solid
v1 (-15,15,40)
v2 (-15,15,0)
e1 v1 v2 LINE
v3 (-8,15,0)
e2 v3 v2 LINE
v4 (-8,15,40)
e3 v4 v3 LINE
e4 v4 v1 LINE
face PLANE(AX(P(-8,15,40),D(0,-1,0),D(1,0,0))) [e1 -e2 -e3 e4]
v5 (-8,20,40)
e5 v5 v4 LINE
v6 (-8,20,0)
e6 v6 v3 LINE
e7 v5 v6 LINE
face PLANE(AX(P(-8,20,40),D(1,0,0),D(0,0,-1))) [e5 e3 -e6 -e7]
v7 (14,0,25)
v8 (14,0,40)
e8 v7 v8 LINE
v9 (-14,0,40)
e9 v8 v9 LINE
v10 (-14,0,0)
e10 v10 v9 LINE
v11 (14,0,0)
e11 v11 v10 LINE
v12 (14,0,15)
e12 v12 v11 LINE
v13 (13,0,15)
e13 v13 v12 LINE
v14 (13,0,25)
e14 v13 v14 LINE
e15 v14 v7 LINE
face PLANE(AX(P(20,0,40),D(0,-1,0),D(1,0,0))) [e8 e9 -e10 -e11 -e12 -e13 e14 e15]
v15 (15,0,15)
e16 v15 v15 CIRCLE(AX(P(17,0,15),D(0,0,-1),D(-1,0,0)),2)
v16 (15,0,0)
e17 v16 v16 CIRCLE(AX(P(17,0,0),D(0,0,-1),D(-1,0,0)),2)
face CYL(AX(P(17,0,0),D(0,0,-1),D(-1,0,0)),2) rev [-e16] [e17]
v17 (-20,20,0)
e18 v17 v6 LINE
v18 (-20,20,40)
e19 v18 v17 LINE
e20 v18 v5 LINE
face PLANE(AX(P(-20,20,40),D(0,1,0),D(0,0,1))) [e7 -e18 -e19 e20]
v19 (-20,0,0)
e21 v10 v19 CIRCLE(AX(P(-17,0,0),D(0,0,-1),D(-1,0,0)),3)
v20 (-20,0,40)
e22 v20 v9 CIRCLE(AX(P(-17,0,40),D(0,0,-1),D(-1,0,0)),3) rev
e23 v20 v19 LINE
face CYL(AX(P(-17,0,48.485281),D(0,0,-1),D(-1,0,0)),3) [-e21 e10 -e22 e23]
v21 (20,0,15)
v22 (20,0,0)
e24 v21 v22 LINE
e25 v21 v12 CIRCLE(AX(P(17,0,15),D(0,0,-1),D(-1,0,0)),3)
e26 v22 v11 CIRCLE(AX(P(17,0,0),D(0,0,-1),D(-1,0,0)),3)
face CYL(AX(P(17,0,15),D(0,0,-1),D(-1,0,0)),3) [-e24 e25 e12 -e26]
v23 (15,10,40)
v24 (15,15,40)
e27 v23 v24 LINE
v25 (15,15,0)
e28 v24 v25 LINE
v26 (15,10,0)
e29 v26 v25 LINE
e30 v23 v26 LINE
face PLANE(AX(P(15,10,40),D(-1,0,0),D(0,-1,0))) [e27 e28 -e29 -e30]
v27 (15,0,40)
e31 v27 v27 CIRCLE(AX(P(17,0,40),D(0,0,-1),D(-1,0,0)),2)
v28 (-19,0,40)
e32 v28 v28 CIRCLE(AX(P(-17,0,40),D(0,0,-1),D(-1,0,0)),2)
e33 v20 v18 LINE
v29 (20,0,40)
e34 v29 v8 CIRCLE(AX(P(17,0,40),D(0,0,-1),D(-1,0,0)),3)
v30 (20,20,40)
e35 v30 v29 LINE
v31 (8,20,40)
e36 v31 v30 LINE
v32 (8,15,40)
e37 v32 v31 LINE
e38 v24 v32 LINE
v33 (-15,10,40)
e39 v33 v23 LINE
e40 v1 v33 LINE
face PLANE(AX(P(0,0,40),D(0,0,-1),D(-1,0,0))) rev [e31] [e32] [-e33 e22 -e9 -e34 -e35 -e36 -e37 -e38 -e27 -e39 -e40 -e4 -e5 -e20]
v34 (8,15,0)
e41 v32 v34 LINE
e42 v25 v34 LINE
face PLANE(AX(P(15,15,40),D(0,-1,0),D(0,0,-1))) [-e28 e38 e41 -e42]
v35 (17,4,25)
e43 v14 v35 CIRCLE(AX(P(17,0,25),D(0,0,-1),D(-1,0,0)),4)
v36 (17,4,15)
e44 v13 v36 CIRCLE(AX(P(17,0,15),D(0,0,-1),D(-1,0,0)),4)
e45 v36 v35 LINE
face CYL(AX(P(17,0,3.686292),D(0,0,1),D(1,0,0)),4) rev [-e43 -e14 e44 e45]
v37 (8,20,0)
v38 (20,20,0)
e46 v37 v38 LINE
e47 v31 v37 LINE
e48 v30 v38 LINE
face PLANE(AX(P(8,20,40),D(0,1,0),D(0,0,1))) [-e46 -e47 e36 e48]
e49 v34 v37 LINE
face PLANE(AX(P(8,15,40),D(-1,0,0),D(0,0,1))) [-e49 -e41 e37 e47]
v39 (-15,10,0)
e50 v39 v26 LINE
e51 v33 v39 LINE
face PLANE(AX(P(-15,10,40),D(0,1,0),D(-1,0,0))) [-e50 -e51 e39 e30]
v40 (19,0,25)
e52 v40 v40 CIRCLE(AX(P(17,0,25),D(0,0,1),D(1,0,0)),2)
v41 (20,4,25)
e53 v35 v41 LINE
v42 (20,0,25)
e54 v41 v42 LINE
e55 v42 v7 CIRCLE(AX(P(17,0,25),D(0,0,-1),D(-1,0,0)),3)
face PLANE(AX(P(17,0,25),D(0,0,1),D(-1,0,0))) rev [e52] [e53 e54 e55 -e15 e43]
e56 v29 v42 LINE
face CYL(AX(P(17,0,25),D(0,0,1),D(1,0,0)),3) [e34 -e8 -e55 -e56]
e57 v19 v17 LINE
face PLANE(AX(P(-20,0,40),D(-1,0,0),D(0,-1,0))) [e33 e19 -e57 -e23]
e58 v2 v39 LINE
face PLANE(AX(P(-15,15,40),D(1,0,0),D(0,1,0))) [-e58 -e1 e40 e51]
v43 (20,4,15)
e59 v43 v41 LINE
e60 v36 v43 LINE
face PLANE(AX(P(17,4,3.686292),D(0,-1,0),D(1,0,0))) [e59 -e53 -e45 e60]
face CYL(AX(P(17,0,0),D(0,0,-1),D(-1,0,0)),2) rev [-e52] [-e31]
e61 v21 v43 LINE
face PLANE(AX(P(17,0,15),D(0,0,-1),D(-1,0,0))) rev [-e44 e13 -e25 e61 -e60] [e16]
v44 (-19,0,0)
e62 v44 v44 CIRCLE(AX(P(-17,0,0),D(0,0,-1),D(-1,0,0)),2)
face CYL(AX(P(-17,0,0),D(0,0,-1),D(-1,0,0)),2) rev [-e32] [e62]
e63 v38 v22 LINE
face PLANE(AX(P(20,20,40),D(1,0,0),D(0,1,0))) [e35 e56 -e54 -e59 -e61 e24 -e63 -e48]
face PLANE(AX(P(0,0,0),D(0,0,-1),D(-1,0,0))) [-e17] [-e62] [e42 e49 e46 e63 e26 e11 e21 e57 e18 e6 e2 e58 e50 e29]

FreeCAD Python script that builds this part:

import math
import FreeCAD as App
import Part
import Sketcher

V = App.Vector

doc = App.newDocument("Part")
body = doc.addObject("PartDesign::Body", "Body")

# Sketch on XY plane
sketch1 = body.newObject("Sketcher::SketchObject", "Sketch")
sketch1.AttachmentSupport = (doc.getObject("XY_Plane"), [""])
sketch1.MapMode = "FlatFace"
sketch1.addGeometry([
    Part.LineSegment(V(-8, 20, 0), V(-20, 20, 0)),  # 0
    Part.LineSegment(V(-20, 20, 0), V(-20, 0, 0)),  # 1
    Part.LineSegment(V(-20, 0, 0), V(20, 0, 0)),  # 2
    Part.LineSegment(V(20, 0, 0), V(20, 20, 0)),  # 3
    Part.LineSegment(V(20, 20, 0), V(8, 20, 0)),  # 4
    Part.LineSegment(V(8, 20, 0), V(8, 15, 0)),  # 5
    Part.LineSegment(V(8, 15, 0), V(15, 15, 0)),  # 6
    Part.LineSegment(V(15, 15, 0), V(15, 10, 0)),  # 7
    Part.LineSegment(V(15, 10, 0), V(-15, 10, 0)),  # 8
    Part.LineSegment(V(-15, 10, 0), V(-15, 15, 0)),  # 9
    Part.LineSegment(V(-15, 15, 0), V(-8, 15, 0)),  # 10
    Part.LineSegment(V(-8, 15, 0), V(-8, 20, 0)),  # 11
], False)
sketch1.addConstraint([
    Sketcher.Constraint("Coincident", 0, 2, 1, 1),
    Sketcher.Constraint("Coincident", 1, 2, 2, 1),
    Sketcher.Constraint("Coincident", 2, 2, 3, 1),
    Sketcher.Constraint("Coincident", 3, 2, 4, 1),
    Sketcher.Constraint("Coincident", 4, 2, 5, 1),
    Sketcher.Constraint("Coincident", 5, 2, 6, 1),
    Sketcher.Constraint("Coincident", 6, 2, 7, 1),
    Sketcher.Constraint("Coincident", 7, 2, 8, 1),
    Sketcher.Constraint("Coincident", 8, 2, 9, 1),
    Sketcher.Constraint("Coincident", 9, 2, 10, 1),
    Sketcher.Constraint("Coincident", 10, 2, 11, 1),
    Sketcher.Constraint("Coincident", 11, 2, 0, 1),
    Sketcher.Constraint("Horizontal", 0),
    Sketcher.Constraint("Vertical", 1),
    Sketcher.Constraint("Horizontal", 2),
    Sketcher.Constraint("Vertical", 3),
    Sketcher.Constraint("Horizontal", 4),
    Sketcher.Constraint("Vertical", 5),
    Sketcher.Constraint("Horizontal", 6),
    Sketcher.Constraint("Vertical", 7),
    Sketcher.Constraint("Horizontal", 8),
    Sketcher.Constraint("Vertical", 9),
    Sketcher.Constraint("Horizontal", 10),
    Sketcher.Constraint("Vertical", 11),
    Sketcher.Constraint("Symmetric", 1, 2, 2, 2, -1, 1),
    Sketcher.Constraint("Symmetric", 6, 2, 9, 2, -2),
    Sketcher.Constraint("Symmetric", 4, 2, 11, 2, -2),
    Sketcher.Constraint("Equal", 5, 7),
    Sketcher.Constraint("DistanceX", 0, 2, 0, 1, 12.0),
    Sketcher.Constraint("DistanceX", 2, 1, 2, 2, 40.0),
    Sketcher.Constraint("DistanceX", 6, 1, 6, 2, 7.0),
    Sketcher.Constraint("DistanceY", 1, 2, 1, 1, 20.0),
    Sketcher.Constraint("DistanceY", 5, 2, 5, 1, 5.0),
])
pad1 = body.newObject("PartDesign::Pad", "Pad")
pad1.Profile = sketch1
pad1.Length = 40

# Sketch on XY plane
sketch2 = body.newObject("Sketcher::SketchObject", "Sketch001")
sketch2.AttachmentSupport = (doc.getObject("XY_Plane"), [""])
sketch2.MapMode = "FlatFace"
sketch2.addGeometry([
    Part.LineSegment(V(14, 0, 0), V(20, 0, 0)),
    Part.ArcOfCircle(Part.Circle(V(17, 0, 0), V(0, 0, 1), 3), math.radians(180), math.radians(360)),
], False)
sketch2.addConstraint([
    Sketcher.Constraint("Coincident", 0, 1, 1, 1),
    Sketcher.Constraint("Coincident", 1, 2, 0, 2),
    Sketcher.Constraint("Horizontal", 0),
    Sketcher.Constraint("PointOnObject", 1, 3, -1),
    Sketcher.Constraint("PointOnObject", 0, 1, -1),
    Sketcher.Constraint("Radius", 1, 3.0),
    Sketcher.Constraint("DistanceX", -1, 1, 1, 3, 17.0),
])
pad2 = body.newObject("PartDesign::Pad", "Pad001")
pad2.Profile = sketch2
pad2.Length = 15
doc.recompute()

datumplane = body.newObject("PartDesign::Plane", "DatumPlane")
datumplane.AttachmentSupport = (doc.getObject("XY_Plane"), [""])
datumplane.MapMode = "FlatFace"
datumplane.AttachmentOffset = App.Placement(V(0, 0, 20), App.Rotation())
mirrored = body.newObject("PartDesign::Mirrored", "Mirrored")
mirrored.Originals = [pad2]
mirrored.MirrorPlane = (datumplane, [""])
body.Tip = mirrored

# Sketch on XY plane
sketch3 = body.newObject("Sketcher::SketchObject", "Sketch002")
sketch3.AttachmentSupport = (doc.getObject("XY_Plane"), [""])
sketch3.MapMode = "FlatFace"
sketch3.addGeometry(Part.Circle(V(-17, 0, 0), V(0, 0, 1), 3), False)
sketch3.addConstraint([
    Sketcher.Constraint("PointOnObject", 0, 3, -1),
    Sketcher.Constraint("Diameter", 0, 6.0),
    Sketcher.Constraint("DistanceX", 0, 3, -1, 1, 17.0),
])
pad3 = body.newObject("PartDesign::Pad", "Pad002")
pad3.Profile = sketch3
pad3.Length = 40

# Sketch on XY plane
sketch4 = body.newObject("Sketcher::SketchObject", "Sketch003")
sketch4.AttachmentSupport = (doc.getObject("XY_Plane"), [""])
sketch4.MapMode = "FlatFace"
sketch4.AttachmentOffset = App.Placement(V(0, 0, 25), App.Rotation())
sketch4.addGeometry([
    Part.LineSegment(V(17, 4, 0), V(20, 4, 0)),
    Part.LineSegment(V(20, 4, 0), V(20, 2.6, 0)),
    Part.ArcOfCircle(Part.Circle(V(17, 0, 0), V(0, 0, 1), 4), math.radians(90), math.radians(401)),
], False)
sketch4.addConstraint([
    Sketcher.Constraint("Coincident", 0, 2, 1, 1),
    Sketcher.Constraint("Coincident", 1, 2, 2, 2),
    Sketcher.Constraint("Tangent", 2, 1, 0, 1),
    Sketcher.Constraint("Horizontal", 0),
    Sketcher.Constraint("Vertical", 1),
    Sketcher.Constraint("PointOnObject", 2, 3, -1),
    Sketcher.Constraint("Radius", 2, 4.0),
    Sketcher.Constraint("DistanceX", 0, 1, 0, 2, 3.0),
    Sketcher.Constraint("DistanceX", -1, 1, 2, 3, 17.0),
])
pocket1 = body.newObject("PartDesign::Pocket", "Pocket")
pocket1.Profile = sketch4
pocket1.Length = 10

# Sketch on XY plane
sketch5 = body.newObject("Sketcher::SketchObject", "Sketch004")
sketch5.AttachmentSupport = (doc.getObject("XY_Plane"), [""])
sketch5.MapMode = "FlatFace"
sketch5.addGeometry(Part.Circle(V(17, 0, 0), V(0, 0, 1), 2), False)
sketch5.addConstraint([
    Sketcher.Constraint("PointOnObject", 0, 3, -1),
    Sketcher.Constraint("Diameter", 0, 4.0),
    Sketcher.Constraint("DistanceX", -1, 1, 0, 3, 17.0),
])
doc.recompute()
hole = body.newObject("PartDesign::Hole", "Hole")
hole.Profile = sketch5
hole.ThreadType = "None"
hole.Diameter = 4
hole.DepthType = "ThroughAll"
hole.Reversed = True
doc.recompute()

mirrored2 = body.newObject("PartDesign::Mirrored", "Mirrored001")
mirrored2.Originals = [hole]
mirrored2.MirrorPlane = (doc.getObject("YZ_Plane"), [""])
body.Tip = mirrored2

doc.recompute()
